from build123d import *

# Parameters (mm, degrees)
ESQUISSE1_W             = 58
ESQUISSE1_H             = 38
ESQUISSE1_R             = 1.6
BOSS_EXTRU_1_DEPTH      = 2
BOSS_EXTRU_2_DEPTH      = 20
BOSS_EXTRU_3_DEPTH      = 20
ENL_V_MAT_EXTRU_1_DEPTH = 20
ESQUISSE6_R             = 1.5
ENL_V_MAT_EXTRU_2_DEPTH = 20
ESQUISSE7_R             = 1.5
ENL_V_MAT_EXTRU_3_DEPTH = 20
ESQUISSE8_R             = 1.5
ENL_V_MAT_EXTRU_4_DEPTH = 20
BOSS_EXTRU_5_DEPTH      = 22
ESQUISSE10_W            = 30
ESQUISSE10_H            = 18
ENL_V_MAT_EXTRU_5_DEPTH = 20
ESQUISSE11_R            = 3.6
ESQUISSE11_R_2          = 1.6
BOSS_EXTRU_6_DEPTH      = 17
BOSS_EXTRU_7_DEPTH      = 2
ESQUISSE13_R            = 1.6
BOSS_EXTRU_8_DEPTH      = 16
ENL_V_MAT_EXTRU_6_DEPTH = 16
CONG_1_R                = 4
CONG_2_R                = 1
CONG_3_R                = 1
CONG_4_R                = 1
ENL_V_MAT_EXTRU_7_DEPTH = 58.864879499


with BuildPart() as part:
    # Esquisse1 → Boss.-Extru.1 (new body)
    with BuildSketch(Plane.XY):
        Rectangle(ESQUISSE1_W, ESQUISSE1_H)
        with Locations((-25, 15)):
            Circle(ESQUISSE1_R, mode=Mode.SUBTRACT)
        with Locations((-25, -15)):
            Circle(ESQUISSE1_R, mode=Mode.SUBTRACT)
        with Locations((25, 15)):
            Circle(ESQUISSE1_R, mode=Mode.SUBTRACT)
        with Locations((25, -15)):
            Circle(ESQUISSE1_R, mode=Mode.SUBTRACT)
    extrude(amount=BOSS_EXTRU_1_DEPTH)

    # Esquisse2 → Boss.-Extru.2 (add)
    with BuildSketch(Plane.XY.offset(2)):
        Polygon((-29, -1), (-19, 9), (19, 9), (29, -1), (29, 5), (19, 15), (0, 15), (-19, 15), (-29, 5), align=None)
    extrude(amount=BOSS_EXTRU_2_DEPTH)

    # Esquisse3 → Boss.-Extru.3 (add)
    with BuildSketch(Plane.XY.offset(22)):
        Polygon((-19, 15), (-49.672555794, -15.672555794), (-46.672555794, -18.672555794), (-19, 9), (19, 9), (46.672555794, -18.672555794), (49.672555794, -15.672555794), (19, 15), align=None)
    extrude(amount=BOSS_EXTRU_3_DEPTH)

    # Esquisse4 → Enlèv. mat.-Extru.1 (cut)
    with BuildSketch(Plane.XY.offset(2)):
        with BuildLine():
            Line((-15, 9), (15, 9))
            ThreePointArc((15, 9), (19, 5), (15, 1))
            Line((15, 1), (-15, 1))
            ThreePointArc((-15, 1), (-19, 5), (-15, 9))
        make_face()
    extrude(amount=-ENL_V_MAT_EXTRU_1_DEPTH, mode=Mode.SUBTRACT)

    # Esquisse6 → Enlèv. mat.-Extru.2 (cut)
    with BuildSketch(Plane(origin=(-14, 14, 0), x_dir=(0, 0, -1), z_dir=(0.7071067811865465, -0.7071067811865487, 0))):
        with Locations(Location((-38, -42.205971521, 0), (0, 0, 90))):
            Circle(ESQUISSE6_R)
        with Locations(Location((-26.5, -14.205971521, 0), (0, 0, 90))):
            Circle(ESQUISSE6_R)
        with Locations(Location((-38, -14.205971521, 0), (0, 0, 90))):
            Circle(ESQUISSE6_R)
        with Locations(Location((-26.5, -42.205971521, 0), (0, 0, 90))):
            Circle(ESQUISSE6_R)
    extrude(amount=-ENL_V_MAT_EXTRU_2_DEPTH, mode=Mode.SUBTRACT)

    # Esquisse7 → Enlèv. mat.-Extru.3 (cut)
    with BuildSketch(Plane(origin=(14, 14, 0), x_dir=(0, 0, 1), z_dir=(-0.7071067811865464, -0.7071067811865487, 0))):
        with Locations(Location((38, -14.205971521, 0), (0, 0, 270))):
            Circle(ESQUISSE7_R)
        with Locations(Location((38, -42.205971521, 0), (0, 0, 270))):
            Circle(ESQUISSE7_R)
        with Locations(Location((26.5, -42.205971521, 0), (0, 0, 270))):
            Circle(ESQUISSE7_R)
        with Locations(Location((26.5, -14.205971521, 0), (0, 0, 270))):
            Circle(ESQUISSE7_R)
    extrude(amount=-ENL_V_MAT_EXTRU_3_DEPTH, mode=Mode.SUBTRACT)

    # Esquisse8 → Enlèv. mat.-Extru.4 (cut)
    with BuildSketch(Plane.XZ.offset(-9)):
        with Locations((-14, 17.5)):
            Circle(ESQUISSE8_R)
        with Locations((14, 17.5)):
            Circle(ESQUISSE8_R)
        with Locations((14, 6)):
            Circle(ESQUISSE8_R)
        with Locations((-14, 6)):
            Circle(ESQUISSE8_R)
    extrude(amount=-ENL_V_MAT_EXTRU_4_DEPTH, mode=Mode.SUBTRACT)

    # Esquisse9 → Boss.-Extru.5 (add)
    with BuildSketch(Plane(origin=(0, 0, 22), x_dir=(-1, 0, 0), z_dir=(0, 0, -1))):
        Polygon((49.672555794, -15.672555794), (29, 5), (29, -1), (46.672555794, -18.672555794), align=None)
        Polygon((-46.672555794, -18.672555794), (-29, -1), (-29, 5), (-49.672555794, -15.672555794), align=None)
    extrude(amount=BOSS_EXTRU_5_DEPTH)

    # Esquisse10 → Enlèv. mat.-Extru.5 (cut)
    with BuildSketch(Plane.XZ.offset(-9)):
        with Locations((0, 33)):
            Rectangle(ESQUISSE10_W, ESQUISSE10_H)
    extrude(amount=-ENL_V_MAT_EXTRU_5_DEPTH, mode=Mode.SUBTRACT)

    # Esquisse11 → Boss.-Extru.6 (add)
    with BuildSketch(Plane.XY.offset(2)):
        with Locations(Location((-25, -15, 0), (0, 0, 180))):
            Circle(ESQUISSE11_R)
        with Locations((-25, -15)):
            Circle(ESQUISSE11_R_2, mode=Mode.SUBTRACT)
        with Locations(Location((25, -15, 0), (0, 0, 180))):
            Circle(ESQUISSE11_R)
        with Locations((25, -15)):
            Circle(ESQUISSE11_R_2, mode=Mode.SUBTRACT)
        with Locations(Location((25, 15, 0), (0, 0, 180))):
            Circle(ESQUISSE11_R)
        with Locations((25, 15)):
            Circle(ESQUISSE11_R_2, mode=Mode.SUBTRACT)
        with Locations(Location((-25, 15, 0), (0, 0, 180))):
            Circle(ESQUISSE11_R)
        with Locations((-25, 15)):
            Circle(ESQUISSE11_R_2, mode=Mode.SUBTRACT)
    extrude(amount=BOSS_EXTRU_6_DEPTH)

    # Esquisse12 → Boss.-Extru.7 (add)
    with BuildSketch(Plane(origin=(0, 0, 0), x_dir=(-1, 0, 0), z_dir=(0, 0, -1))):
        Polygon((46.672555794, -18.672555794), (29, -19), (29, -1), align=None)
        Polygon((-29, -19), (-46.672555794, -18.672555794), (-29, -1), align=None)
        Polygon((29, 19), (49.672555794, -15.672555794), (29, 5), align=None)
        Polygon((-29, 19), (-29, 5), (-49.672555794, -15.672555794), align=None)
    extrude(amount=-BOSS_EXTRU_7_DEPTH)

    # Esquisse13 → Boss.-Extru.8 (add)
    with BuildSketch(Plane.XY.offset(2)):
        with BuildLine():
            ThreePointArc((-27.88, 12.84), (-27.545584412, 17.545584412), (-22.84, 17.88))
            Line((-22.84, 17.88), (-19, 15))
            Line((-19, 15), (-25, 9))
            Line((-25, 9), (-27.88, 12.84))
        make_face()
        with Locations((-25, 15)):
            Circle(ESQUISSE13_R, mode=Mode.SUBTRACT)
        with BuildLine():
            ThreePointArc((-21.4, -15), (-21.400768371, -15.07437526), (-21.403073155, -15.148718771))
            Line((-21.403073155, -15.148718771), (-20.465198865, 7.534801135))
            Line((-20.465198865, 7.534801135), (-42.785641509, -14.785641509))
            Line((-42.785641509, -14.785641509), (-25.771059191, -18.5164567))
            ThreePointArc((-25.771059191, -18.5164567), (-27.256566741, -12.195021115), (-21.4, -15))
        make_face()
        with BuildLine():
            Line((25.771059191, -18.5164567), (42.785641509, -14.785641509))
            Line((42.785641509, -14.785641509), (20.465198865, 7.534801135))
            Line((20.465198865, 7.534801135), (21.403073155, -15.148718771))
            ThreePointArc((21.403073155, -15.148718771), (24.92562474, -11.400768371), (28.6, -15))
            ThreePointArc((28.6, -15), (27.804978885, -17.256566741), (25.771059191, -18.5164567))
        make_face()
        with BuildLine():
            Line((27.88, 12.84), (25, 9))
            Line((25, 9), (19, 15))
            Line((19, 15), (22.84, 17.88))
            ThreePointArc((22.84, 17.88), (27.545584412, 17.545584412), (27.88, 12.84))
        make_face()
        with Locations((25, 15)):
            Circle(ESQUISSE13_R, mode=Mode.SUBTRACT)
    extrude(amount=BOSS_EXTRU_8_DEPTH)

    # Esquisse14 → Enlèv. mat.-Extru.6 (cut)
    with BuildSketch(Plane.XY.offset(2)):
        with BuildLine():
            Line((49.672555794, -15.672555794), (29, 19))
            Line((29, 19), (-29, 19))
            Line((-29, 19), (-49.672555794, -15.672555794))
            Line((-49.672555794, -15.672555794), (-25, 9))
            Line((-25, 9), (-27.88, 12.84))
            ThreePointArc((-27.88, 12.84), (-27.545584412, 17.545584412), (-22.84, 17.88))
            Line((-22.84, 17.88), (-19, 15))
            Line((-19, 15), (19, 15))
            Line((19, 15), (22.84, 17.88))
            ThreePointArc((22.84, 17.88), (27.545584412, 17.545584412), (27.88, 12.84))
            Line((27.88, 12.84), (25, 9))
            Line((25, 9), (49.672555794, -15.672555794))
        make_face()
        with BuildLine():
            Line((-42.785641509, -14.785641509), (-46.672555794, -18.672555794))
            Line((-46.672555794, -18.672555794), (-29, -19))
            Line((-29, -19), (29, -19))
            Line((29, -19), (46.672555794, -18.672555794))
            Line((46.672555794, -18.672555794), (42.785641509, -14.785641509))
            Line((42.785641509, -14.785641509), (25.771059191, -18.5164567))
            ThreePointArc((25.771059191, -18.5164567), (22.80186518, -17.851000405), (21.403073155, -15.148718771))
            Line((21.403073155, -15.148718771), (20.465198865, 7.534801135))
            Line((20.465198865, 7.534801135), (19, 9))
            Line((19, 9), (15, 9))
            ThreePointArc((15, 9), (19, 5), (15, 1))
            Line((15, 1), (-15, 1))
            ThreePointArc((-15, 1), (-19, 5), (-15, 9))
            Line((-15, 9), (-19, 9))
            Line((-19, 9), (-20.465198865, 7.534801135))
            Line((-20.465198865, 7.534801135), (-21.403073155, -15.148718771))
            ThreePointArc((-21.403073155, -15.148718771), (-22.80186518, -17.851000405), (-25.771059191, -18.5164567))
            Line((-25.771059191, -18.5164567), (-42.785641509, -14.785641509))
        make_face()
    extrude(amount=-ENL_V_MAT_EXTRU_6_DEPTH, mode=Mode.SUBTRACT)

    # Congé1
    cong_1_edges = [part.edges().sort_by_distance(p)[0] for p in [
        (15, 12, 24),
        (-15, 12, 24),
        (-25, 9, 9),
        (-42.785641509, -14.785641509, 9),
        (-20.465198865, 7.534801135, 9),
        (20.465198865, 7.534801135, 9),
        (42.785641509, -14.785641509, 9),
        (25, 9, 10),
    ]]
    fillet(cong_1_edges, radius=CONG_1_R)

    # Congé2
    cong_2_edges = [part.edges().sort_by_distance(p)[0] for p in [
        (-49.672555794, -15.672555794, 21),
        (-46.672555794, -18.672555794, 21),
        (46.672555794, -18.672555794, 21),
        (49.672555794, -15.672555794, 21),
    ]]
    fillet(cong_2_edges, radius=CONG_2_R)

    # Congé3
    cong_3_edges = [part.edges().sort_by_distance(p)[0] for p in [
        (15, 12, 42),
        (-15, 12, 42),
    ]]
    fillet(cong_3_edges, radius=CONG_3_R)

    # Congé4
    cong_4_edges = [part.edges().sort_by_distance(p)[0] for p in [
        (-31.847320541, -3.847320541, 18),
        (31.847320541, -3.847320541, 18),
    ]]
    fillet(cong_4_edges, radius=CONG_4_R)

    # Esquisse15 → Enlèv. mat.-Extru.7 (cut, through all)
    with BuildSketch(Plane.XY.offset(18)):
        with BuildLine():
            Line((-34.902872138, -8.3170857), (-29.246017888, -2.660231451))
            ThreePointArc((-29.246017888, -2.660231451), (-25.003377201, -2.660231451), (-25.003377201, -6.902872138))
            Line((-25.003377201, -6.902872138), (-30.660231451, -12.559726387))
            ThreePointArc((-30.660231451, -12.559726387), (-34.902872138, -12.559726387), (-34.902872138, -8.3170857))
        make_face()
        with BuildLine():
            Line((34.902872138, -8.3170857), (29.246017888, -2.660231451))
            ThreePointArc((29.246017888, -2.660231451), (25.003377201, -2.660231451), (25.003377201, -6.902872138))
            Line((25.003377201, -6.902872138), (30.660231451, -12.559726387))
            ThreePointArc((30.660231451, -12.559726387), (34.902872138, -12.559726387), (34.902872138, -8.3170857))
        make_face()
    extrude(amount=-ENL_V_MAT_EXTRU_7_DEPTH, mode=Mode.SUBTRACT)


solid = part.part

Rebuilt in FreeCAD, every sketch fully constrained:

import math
import FreeCAD as App
import Part
import Sketcher


def edges_at(feature, points):
    """Names of the edges that pass closest to the given points."""
    edges = feature.Shape.Edges
    near = lambda p: min(range(len(edges)), key=lambda i: edges[i].distToShape(Part.Vertex(*p))[0])
    return sorted({f"Edge{near(p) + 1}" for p in points})


def add_polygon(sketch, points):
    """Adds a closed chain of lines whose ends are joined by coincident constraints."""
    first, n = sketch.GeometryCount, len(points)
    for a, b in zip(points, points[1:] + points[:1]):
        sketch.addGeometry(Part.LineSegment(App.Vector(*a, 0), App.Vector(*b, 0)), False)
    for i in range(n):
        sketch.addConstraint(Sketcher.Constraint("Coincident", first + i, 2, first + (i + 1) % n, 1))

doc = App.newDocument("Part")
body = doc.addObject("PartDesign::Body", "Body")

sketch1 = body.newObject("Sketcher::SketchObject", "Sketch")
sketch1.AttachmentSupport = (doc.getObject("XY_Plane"), [""])
sketch1.MapMode = "FlatFace"
add_polygon(sketch1, [(-29, 19), (-29, -19), (29, -19), (29, 19)])
sketch1.addGeometry(Part.Circle(App.Vector(-25, -15, 0), App.Vector(0, 0, 1), 1.6), False)
sketch1.addGeometry(Part.Circle(App.Vector(25, -15, 0), App.Vector(0, 0, 1), 1.6), False)
sketch1.addGeometry(Part.Circle(App.Vector(-25, 15, 0), App.Vector(0, 0, 1), 1.6), False)
sketch1.addGeometry(Part.Circle(App.Vector(25, 15, 0), App.Vector(0, 0, 1), 1.6), False)
sketch1.addConstraint([
    Sketcher.Constraint("Vertical", 0),
    Sketcher.Constraint("Horizontal", 1),
    Sketcher.Constraint("Vertical", 2),
    Sketcher.Constraint("Horizontal", 3),
    Sketcher.Constraint("Equal", 4, 5),
    Sketcher.Constraint("Equal", 5, 6),
    Sketcher.Constraint("Equal", 6, 7),
    Sketcher.Constraint("Symmetric", 5, 3, 6, 3, -1, 1),
    Sketcher.Constraint("Symmetric", 4, 3, 7, 3, -1, 1),
    Sketcher.Constraint("Symmetric", 0, 2, 2, 2, -1, 1),
    Sketcher.Constraint("Symmetric", 4, 3, 5, 3, -2),
    Sketcher.Constraint("Diameter", 4, 3.2),
    Sketcher.Constraint("DistanceX", 1, 1, 1, 2, 58.0),
    Sketcher.Constraint("DistanceY", 0, 2, 0, 1, 38.0),
    Sketcher.Constraint("DistanceX", 4, 3, -1, 1, 25.0),
    Sketcher.Constraint("DistanceY", 4, 3, -1, 1, 15.0),
])
pad1 = body.newObject("PartDesign::Pad", "Pad")
pad1.Profile = sketch1
pad1.Length = 2

sketch2 = body.newObject("Sketcher::SketchObject", "Sketch001")
sketch2.AttachmentSupport = (doc.getObject("XY_Plane"), [""])
sketch2.MapMode = "FlatFace"
sketch2.AttachmentOffset = App.Placement(App.Vector(0, 0, 2), App.Rotation())
add_polygon(sketch2, [(-29, -1), (-19, 9), (19, 9), (29, -1), (29, 5), (19, 15), (-19, 15), (-29, 5)])
sketch2.addConstraint([
    Sketcher.Constraint("Horizontal", 1),
    Sketcher.Constraint("Vertical", 3),
    Sketcher.Constraint("Horizontal", 5),
    Sketcher.Constraint("Vertical", 7),
    Sketcher.Constraint("Symmetric", 3, 2, 6, 2, -2),
    Sketcher.Constraint("Perpendicular", 0, 2),
    Sketcher.Constraint("Parallel", 2, 4),
    Sketcher.Constraint("Perpendicular", 4, 6),
    Sketcher.Constraint("Horizontal", 2, 2, 7, 2),
    Sketcher.Constraint("Vertical", 1, 2, 4, 2),
    Sketcher.Constraint("Equal", 0, 2),
    Sketcher.Constraint("DistanceX", 1, 1, 1, 2, 38.0),
    Sketcher.Constraint("DistanceY", 3, 1, 3, 2, 6.0),
    Sketcher.Constraint("DistanceY", -1, 1, 0, 2, 9.0),
    Sketcher.Constraint("DistanceX", -1, 1, 2, 2, 29.0),
])
pad2 = body.newObject("PartDesign::Pad", "Pad001")
pad2.Profile = sketch2
pad2.Length = 20

sketch3 = body.newObject("Sketcher::SketchObject", "Sketch002")
sketch3.AttachmentSupport = (doc.getObject("XY_Plane"), [""])
sketch3.MapMode = "FlatFace"
sketch3.AttachmentOffset = App.Placement(App.Vector(0, 0, 22), App.Rotation())
add_polygon(sketch3, [(-19, 15), (-49.672556, -15.672556), (-46.672556, -18.672556), (-19, 9), (19, 9), (46.672556, -18.672556), (49.672556, -15.672556), (19, 15)])
sketch3.addConstraint([
    Sketcher.Constraint("Horizontal", 3),
    Sketcher.Constraint("Horizontal", 7),
    Sketcher.Constraint("Symmetric", 1, 2, 4, 2, -2),
    Sketcher.Constraint("Symmetric", 0, 2, 5, 2, -2),
    Sketcher.Constraint("Perpendicular", 0, 1),
    Sketcher.Constraint("Perpendicular", 1, 2),
    Sketcher.Constraint("Perpendicular", 2, 4),
    Sketcher.Constraint("Perpendicular", 4, 5),
    Sketcher.Constraint("Perpendicular", 5, 6),
    Sketcher.Constraint("Vertical", 3, 2, 6, 2),
    Sketcher.Constraint("DistanceX", 3, 1, 3, 2, 38.0),
    Sketcher.Constraint("DistanceY", -1, 1, 2, 2, 9.0),
    Sketcher.Constraint("DistanceY", -1, 1, 6, 2, 15.0),
    Sketcher.Constraint("DistanceX", 1, 2, 4, 2, 93.345112),
])
pad3 = body.newObject("PartDesign::Pad", "Pad002")
pad3.Profile = sketch3
pad3.Length = 20

sketch4 = body.newObject("Sketcher::SketchObject", "Sketch003")
sketch4.AttachmentSupport = (doc.getObject("XY_Plane"), [""])
sketch4.MapMode = "FlatFace"
sketch4.AttachmentOffset = App.Placement(App.Vector(0, 0, 2), App.Rotation())
sketch4.addGeometry([
    Part.LineSegment(App.Vector(15, 9, 0), App.Vector(-15, 9, 0)),
    Part.ArcOfCircle(Part.Circle(App.Vector(-15, 5, 0), App.Vector(0, 0, 1), 4), math.radians(90), math.radians(270)),
    Part.LineSegment(App.Vector(-15, 1, 0), App.Vector(15, 1, 0)),
    Part.ArcOfCircle(Part.Circle(App.Vector(15, 5, 0), App.Vector(0, 0, 1), 4), math.radians(-90), math.radians(90)),
], False)
sketch4.addConstraint([
    Sketcher.Constraint("Tangent", 0, 2, 1, 1),
    Sketcher.Constraint("Tangent", 1, 2, 2, 1),
    Sketcher.Constraint("Tangent", 2, 2, 3, 1),
    Sketcher.Constraint("Tangent", 3, 2, 0, 1),
    Sketcher.Constraint("Horizontal", 0),
    Sketcher.Constraint("Horizontal", 2),
    Sketcher.Constraint("Radius", 1, 4.0),
    Sketcher.Constraint("DistanceX", 0, 2, 0, 1, 30.0),
    Sketcher.Constraint("DistanceX", 1, 3, -1, 1, 15.0),
    Sketcher.Constraint("DistanceY", -1, 1, 1, 3, 5.0),
])
pocket1 = body.newObject("PartDesign::Pocket", "Pocket")
pocket1.Profile = sketch4
pocket1.Length = 20

sketch5 = body.newObject("Sketcher::SketchObject", "Sketch004")
sketch5.Placement = App.Placement(App.Vector(-14, 14, 0), App.Rotation(App.Vector(0, 0, -1), App.Vector(0.707106781, 0.707106781, 0), App.Vector(0.707106781, -0.707106781, 0), "ZXY"))
sketch5.addGeometry([
    Part.Circle(App.Vector(-38, -42.205971, 0), App.Vector(0, 0, 1), 1.5),
    Part.Circle(App.Vector(-26.5, -14.205972, 0), App.Vector(0, 0, 1), 1.5),
    Part.Circle(App.Vector(-38, -14.205972, 0), App.Vector(0, 0, 1), 1.5),
    Part.Circle(App.Vector(-26.5, -42.205971, 0), App.Vector(0, 0, 1), 1.5),
], False)
sketch5.addConstraint([
    Sketcher.Constraint("Equal", 0, 1),
    Sketcher.Constraint("Equal", 1, 2),
    Sketcher.Constraint("Equal", 2, 3),
    Sketcher.Constraint("Horizontal", 1, 3, 2, 3),
    Sketcher.Constraint("Horizontal", 0, 3, 3, 3),
    Sketcher.Constraint("Vertical", 0, 3, 2, 3),
    Sketcher.Constraint("Vertical", 1, 3, 3, 3),
    Sketcher.Constraint("Diameter", 0, 3.0),
    Sketcher.Constraint("DistanceX", 0, 3, -1, 1, 38.0),
    Sketcher.Constraint("DistanceY", 0, 3, 1, 3, 28.0),
    Sketcher.Constraint("DistanceX", 1, 3, -1, 1, 26.5),
    Sketcher.Constraint("DistanceY", 0, 3, -1, 1, 42.205971),
])
pocket2 = body.newObject("PartDesign::Pocket", "Pocket001")
pocket2.Profile = sketch5
pocket2.Length = 20

sketch6 = body.newObject("Sketcher::SketchObject", "Sketch005")
sketch6.Placement = App.Placement(App.Vector(14, 14, 0), App.Rotation(App.Vector(0, 0, 1), App.Vector(-0.707106781, 0.707106781, 0), App.Vector(-0.707106781, -0.707106781, 0), "ZXY"))
sketch6.addGeometry([
    Part.Circle(App.Vector(38, -14.205972, 0), App.Vector(0, 0, 1), 1.5),
    Part.Circle(App.Vector(38, -42.205971, 0), App.Vector(0, 0, 1), 1.5),
    Part.Circle(App.Vector(26.5, -42.205971, 0), App.Vector(0, 0, 1), 1.5),
    Part.Circle(App.Vector(26.5, -14.205972, 0), App.Vector(0, 0, 1), 1.5),
], False)
sketch6.addConstraint([
    Sketcher.Constraint("Equal", 0, 1),
    Sketcher.Constraint("Equal", 1, 2),
    Sketcher.Constraint("Equal", 2, 3),
    Sketcher.Constraint("Horizontal", 1, 3, 2, 3),
    Sketcher.Constraint("Horizontal", 0, 3, 3, 3),
    Sketcher.Constraint("Vertical", 0, 3, 1, 3),
    Sketcher.Constraint("Vertical", 2, 3, 3, 3),
    Sketcher.Constraint("Diameter", 0, 3.0),
    Sketcher.Constraint("DistanceX", -1, 1, 0, 3, 38.0),
    Sketcher.Constraint("DistanceY", 1, 3, 0, 3, 28.0),
    Sketcher.Constraint("DistanceX", -1, 1, 2, 3, 26.5),
    Sketcher.Constraint("DistanceY", 0, 3, -1, 1, 14.205972),
])
pocket3 = body.newObject("PartDesign::Pocket", "Pocket002")
pocket3.Profile = sketch6
pocket3.Length = 20

sketch7 = body.newObject("Sketcher::SketchObject", "Sketch006")
sketch7.AttachmentSupport = (doc.getObject("XZ_Plane"), [""])
sketch7.MapMode = "FlatFace"
sketch7.AttachmentOffset = App.Placement(App.Vector(0, 0, -9), App.Rotation())
sketch7.addGeometry([
    Part.Circle(App.Vector(-14, 17.5, 0), App.Vector(0, 0, 1), 1.5),
    Part.Circle(App.Vector(14, 17.5, 0), App.Vector(0, 0, 1), 1.5),
    Part.Circle(App.Vector(14, 6, 0), App.Vector(0, 0, 1), 1.5),
    Part.Circle(App.Vector(-14, 6, 0), App.Vector(0, 0, 1), 1.5),
], False)
sketch7.addConstraint([
    Sketcher.Constraint("Equal", 0, 1),
    Sketcher.Constraint("Equal", 1, 2),
    Sketcher.Constraint("Equal", 2, 3),
    Sketcher.Constraint("Symmetric", 0, 3, 1, 3, -2),
    Sketcher.Constraint("Symmetric", 2, 3, 3, 3, -2),
    Sketcher.Constraint("Vertical", 1, 3, 2, 3),
    Sketcher.Constraint("Diameter", 0, 3.0),
    Sketcher.Constraint("DistanceX", 0, 3, -1, 1, 14.0),
    Sketcher.Constraint("DistanceY", -1, 1, 2, 3, 6.0),
    Sketcher.Constraint("DistanceY", -1, 1, 0, 3, 17.5),
])
pocket4 = body.newObject("PartDesign::Pocket", "Pocket003")
pocket4.Profile = sketch7
pocket4.Length = 20

sketch8 = body.newObject("Sketcher::SketchObject", "Sketch007")
sketch8.AttachmentSupport = (doc.getObject("XY_Plane"), [""])
sketch8.MapMode = "FlatFace"
sketch8.AttachmentOffset = App.Placement(App.Vector(0, 0, 22), App.Rotation())
add_polygon(sketch8, [(-49.672556, -15.672556), (-29, 5), (-29, -1), (-46.672556, -18.672556)])
add_polygon(sketch8, [(46.672556, -18.672556), (29, -1), (29, 5), (49.672556, -15.672556)])
sketch8.addConstraint([
    Sketcher.Constraint("Vertical", 1),
    Sketcher.Constraint("Vertical", 5),
    Sketcher.Constraint("Symmetric", 1, 2, 4, 2, -2),
    Sketcher.Constraint("Symmetric", 3, 2, 6, 2, -2),
    Sketcher.Constraint("Symmetric", 2, 2, 7, 2, -2),
    Sketcher.Constraint("Parallel", 0, 2),
    Sketcher.Constraint("Perpendicular", 2, 3),
    Sketcher.Constraint("Parallel", 3, 4),
    Sketcher.Constraint("Parallel", 4, 6),
    Sketcher.Constraint("DistanceY", 1, 2, 1, 1, 6.0),
    Sketcher.Constraint("DistanceX", 0, 2, -1, 1, 29.0),
    Sketcher.Constraint("DistanceY", -1, 1, 0, 2, 5.0),
    Sketcher.Constraint("Distance", 0, 29.235409),
])
pad4 = body.newObject("PartDesign::Pad", "Pad003")
pad4.Profile = sketch8
pad4.Length = 22
pad4.Reversed = True

sketch9 = body.newObject("Sketcher::SketchObject", "Sketch008")
sketch9.AttachmentSupport = (doc.getObject("XZ_Plane"), [""])
sketch9.MapMode = "FlatFace"
sketch9.AttachmentOffset = App.Placement(App.Vector(0, 0, -9), App.Rotation())
add_polygon(sketch9, [(-15, 42), (-15, 24), (15, 24), (15, 42)])
sketch9.addConstraint([
    Sketcher.Constraint("Vertical", 0),
    Sketcher.Constraint("Horizontal", 1),
    Sketcher.Constraint("Vertical", 2),
    Sketcher.Constraint("Horizontal", 3),
    Sketcher.Constraint("DistanceX", 1, 1, 1, 2, 30.0),
    Sketcher.Constraint("DistanceY", 0, 2, 0, 1, 18.0),
    Sketcher.Constraint("DistanceX", 0, 2, -1, 1, 15.0),
    Sketcher.Constraint("DistanceY", -1, 1, 0, 2, 24.0),
])
pocket5 = body.newObject("PartDesign::Pocket", "Pocket004")
pocket5.Profile = sketch9
pocket5.Length = 20

sketch10 = body.newObject("Sketcher::SketchObject", "Sketch009")
sketch10.AttachmentSupport = (doc.getObject("XY_Plane"), [""])
sketch10.MapMode = "FlatFace"
sketch10.AttachmentOffset = App.Placement(App.Vector(0, 0, 2), App.Rotation())
sketch10.addGeometry([
    Part.Circle(App.Vector(-25, -15, 0), App.Vector(0, 0, 1), 3.6),
    Part.Circle(App.Vector(-25, -15, 0), App.Vector(0, 0, 1), 1.6),
    Part.Circle(App.Vector(25, -15, 0), App.Vector(0, 0, 1), 3.6),
    Part.Circle(App.Vector(25, -15, 0), App.Vector(0, 0, 1), 1.6),
    Part.Circle(App.Vector(25, 15, 0), App.Vector(0, 0, 1), 3.6),
    Part.Circle(App.Vector(25, 15, 0), App.Vector(0, 0, 1), 1.6),
    Part.Circle(App.Vector(-25, 15, 0), App.Vector(0, 0, 1), 3.6),
    Part.Circle(App.Vector(-25, 15, 0), App.Vector(0, 0, 1), 1.6),
], False)
sketch10.addConstraint([
    Sketcher.Constraint("Coincident", 1, 3, 0, 3),
    Sketcher.Constraint("Coincident", 3, 3, 2, 3),
    Sketcher.Constraint("Coincident", 5, 3, 4, 3),
    Sketcher.Constraint("Coincident", 7, 3, 6, 3),
    Sketcher.Constraint("Equal", 0, 2),
    Sketcher.Constraint("Equal", 1, 3),
    Sketcher.Constraint("Equal", 2, 4),
    Sketcher.Constraint("Equal", 3, 5),
    Sketcher.Constraint("Equal", 4, 6),
    Sketcher.Constraint("Equal", 5, 7),
    Sketcher.Constraint("Symmetric", 0, 3, 4, 3, -1, 1),
    Sketcher.Constraint("Symmetric", 2, 3, 6, 3, -1, 1),
    Sketcher.Constraint("Symmetric", 0, 3, 2, 3, -2),
    Sketcher.Constraint("Diameter", 0, 7.2),
    Sketcher.Constraint("Diameter", 1, 3.2),
    Sketcher.Constraint("DistanceX", 0, 3, -1, 1, 25.0),
    Sketcher.Constraint("DistanceY", 0, 3, -1, 1, 15.0),
])
pad5 = body.newObject("PartDesign::Pad", "Pad004")
pad5.Profile = sketch10
pad5.Length = 17

sketch11 = body.newObject("Sketcher::SketchObject", "Sketch010")
sketch11.AttachmentSupport = (doc.getObject("XY_Plane"), [""])
sketch11.MapMode = "FlatFace"
add_polygon(sketch11, [(-29, -19), (-46.672556, -18.672556), (-29, -1)])
add_polygon(sketch11, [(46.672556, -18.672556), (29, -19), (29, -1)])
add_polygon(sketch11, [(-49.672556, -15.672556), (-29, 19), (-29, 5)])
add_polygon(sketch11, [(29, 5), (29, 19), (49.672556, -15.672556)])
sketch11.addConstraint([
    Sketcher.Constraint("Vertical", 2),
    Sketcher.Constraint("Vertical", 4),
    Sketcher.Constraint("Vertical", 7),
    Sketcher.Constraint("Vertical", 9),
    Sketcher.Constraint("Symmetric", 3, 2, 6, 2, -1, 1),
    Sketcher.Constraint("Symmetric", 2, 2, 9, 2, -1, 1),
    Sketcher.Constraint("Symmetric", 2, 2, 3, 2, -2),
    Sketcher.Constraint("Symmetric", 0, 2, 5, 2, -2),
    Sketcher.Constraint("Symmetric", 8, 2, 10, 2, -2),
    Sketcher.Constraint("Perpendicular", 1, 5),
    Sketcher.Constraint("Perpendicular", 5, 8),
    Sketcher.Constraint("Perpendicular", 8, 11),
    Sketcher.Constraint("Horizontal", 1, 2, 4, 2),
    Sketcher.Constraint("DistanceY", 2, 2, 2, 1, 18.0),
    Sketcher.Constraint("DistanceY", 7, 2, 7, 1, 14.0),
    Sketcher.Constraint("DistanceX", 1, 2, -1, 1, 29.0),
    Sketcher.Constraint("DistanceY", 1, 2, -1, 1, 1.0),
    Sketcher.Constraint("DistanceX", 8, 2, 0, 2, 3.0),
    Sketcher.Constraint("Distance", 0, 17.675589),
])
pad6 = body.newObject("PartDesign::Pad", "Pad005")
pad6.Profile = sketch11
pad6.Length = 2

sketch12 = body.newObject("Sketcher::SketchObject", "Sketch011")
sketch12.AttachmentSupport = (doc.getObject("XY_Plane"), [""])
sketch12.MapMode = "FlatFace"
sketch12.AttachmentOffset = App.Placement(App.Vector(0, 0, 2), App.Rotation())
sketch12.addGeometry([
    Part.ArcOfCircle(Part.Circle(App.Vector(-25, 15, 0), App.Vector(0, 0, 1), 3.6), math.radians(53.130102), math.radians(216.869898)),
    Part.LineSegment(App.Vector(-27.88, 12.84, 0), App.Vector(-25, 9, 0)),
    Part.LineSegment(App.Vector(-25, 9, 0), App.Vector(-19, 15, 0)),
    Part.LineSegment(App.Vector(-19, 15, 0), App.Vector(-22.84, 17.88, 0)),
    Part.Circle(App.Vector(-25, 15, 0), App.Vector(0, 0, 1), 1.6),
    Part.ArcOfCircle(Part.Circle(App.Vector(-25.000001, -15, 0), App.Vector(0, 0, 1), 3.600001), math.radians(-2.367606), math.radians(0)),
    Part.LineSegment(App.Vector(-21.403073, -15.148719, 0), App.Vector(-20.465199, 7.534801, 0)),
    Part.LineSegment(App.Vector(-20.465199, 7.534801, 0), App.Vector(-42.785642, -14.785642, 0)),
    Part.LineSegment(App.Vector(-42.785642, -14.785642, 0), App.Vector(-25.771059, -18.516457, 0)),
    Part.ArcOfCircle(Part.Circle(App.Vector(-25, -15, 0), App.Vector(0, 0, 1), 3.6), math.radians(0), math.radians(257.632393)),
    Part.LineSegment(App.Vector(25.771059, -18.516457, 0), App.Vector(42.785642, -14.785642, 0)),
    Part.LineSegment(App.Vector(42.785642, -14.785642, 0), App.Vector(20.465199, 7.534801, 0)),
    Part.LineSegment(App.Vector(20.465199, 7.534801, 0), App.Vector(21.403073, -15.148719, 0)),
    Part.ArcOfCircle(Part.Circle(App.Vector(25, -15, 0), App.Vector(0, 0, 1), 3.6), math.radians(0), math.radians(182.367606)),
    Part.ArcOfCircle(Part.Circle(App.Vector(25, -15, 0), App.Vector(0, 0, 1), 3.6), math.radians(-77.632394), math.radians(0)),
    Part.LineSegment(App.Vector(25, 9, 0), App.Vector(27.88, 12.84, 0)),
    Part.ArcOfCircle(Part.Circle(App.Vector(25, 15, 0), App.Vector(0, 0, 1), 3.6), math.radians(-36.869898), math.radians(126.869898)),
    Part.LineSegment(App.Vector(22.84, 17.88, 0), App.Vector(19, 15, 0)),
    Part.LineSegment(App.Vector(19, 15, 0), App.Vector(25, 9, 0)),
    Part.Circle(App.Vector(25, 15, 0), App.Vector(0, 0, 1), 1.6),
], False)
sketch12.addConstraint([
    Sketcher.Constraint("Tangent", 0, 2, 1, 1),
    Sketcher.Constraint("Coincident", 1, 2, 2, 1),
    Sketcher.Constraint("Coincident", 2, 2, 3, 1),
    Sketcher.Constraint("Tangent", 3, 2, 0, 1),
    Sketcher.Constraint("Tangent", 5, 1, 6, 1),
    Sketcher.Constraint("Coincident", 6, 2, 7, 1),
    Sketcher.Constraint("Coincident", 7, 2, 8, 1),
    Sketcher.Constraint("Tangent", 8, 2, 9, 2),
    Sketcher.Constraint("Tangent", 9, 1, 5, 2),
    Sketcher.Constraint("Coincident", 10, 2, 11, 1),
    Sketcher.Constraint("Coincident", 11, 2, 12, 1),
    Sketcher.Constraint("Tangent", 12, 2, 13, 2),
    Sketcher.Constraint("Tangent", 13, 1, 14, 2),
    Sketcher.Constraint("Tangent", 14, 1, 10, 1),
    Sketcher.Constraint("Tangent", 15, 2, 16, 1),
    Sketcher.Constraint("Tangent", 16, 2, 17, 1),
    Sketcher.Constraint("Coincident", 17, 2, 18, 1),
    Sketcher.Constraint("Coincident", 18, 2, 15, 1),
    Sketcher.Constraint("Coincident", 4, 3, 0, 3),
    Sketcher.Constraint("Coincident", 19, 3, 16, 3),
    Sketcher.Constraint("Equal", 0, 5),
    Sketcher.Constraint("Equal", 5, 9),
    Sketcher.Constraint("Equal", 9, 13),
    Sketcher.Constraint("Equal", 13, 14),
    Sketcher.Constraint("Equal", 14, 16),
    Sketcher.Constraint("Equal", 4, 19),
    Sketcher.Constraint("Symmetric", 0, 3, 13, 3, -1, 1),
    Sketcher.Constraint("Symmetric", 5, 3, 16, 3, -1, 1),
    Sketcher.Constraint("Symmetric", 5, 3, 13, 3, -2),
    Sketcher.Constraint("Symmetric", 7, 2, 10, 2, -2),
    Sketcher.Constraint("Symmetric", 6, 2, 11, 2, -2),
    Sketcher.Constraint("Symmetric", 2, 2, 17, 2, -2),
    Sketcher.Constraint("Symmetric", 1, 2, 18, 2, -2),
    Sketcher.Constraint("Parallel", 2, 7),
    Sketcher.Constraint("Perpendicular", 7, 11),
    Sketcher.Constraint("Perpendicular", 3, 15),
    Sketcher.Constraint("Horizontal", 19, 3, 2, 2),
    Sketcher.Constraint("Horizontal", 14, 3, 9, 1),
    Sketcher.Constraint("Horizontal", 9, 1, 13, 1),
    Sketcher.Constraint("Diameter", 4, 3.2),
    Sketcher.Constraint("Radius", 0, 3.6),
    Sketcher.Constraint("DistanceX", 0, 3, -1, 1, 25.0),
    Sketcher.Constraint("DistanceY", -1, 1, 0, 3, 15.0),
    Sketcher.Constraint("DistanceY", -1, 1, 1, 2, 9.0),
    Sketcher.Constraint("Distance", 6, 22.7029),
    Sketcher.Constraint("DistanceX", 6, 2, -1, 1, 20.465199),
    Sketcher.Constraint("Distance", 8, 17.418811),
])
pad7 = body.newObject("PartDesign::Pad", "Pad006")
pad7.Profile = sketch12
pad7.Length = 16

sketch13 = body.newObject("Sketcher::SketchObject", "Sketch012")
sketch13.AttachmentSupport = (doc.getObject("XY_Plane"), [""])
sketch13.MapMode = "FlatFace"
sketch13.AttachmentOffset = App.Placement(App.Vector(0, 0, 2), App.Rotation())
sketch13.addGeometry([
    Part.LineSegment(App.Vector(49.672556, -15.672556, 0), App.Vector(29, 19, 0)),
    Part.LineSegment(App.Vector(29, 19, 0), App.Vector(-29, 19, 0)),
    Part.LineSegment(App.Vector(-29, 19, 0), App.Vector(-49.672556, -15.672556, 0)),
    Part.LineSegment(App.Vector(-49.672556, -15.672556, 0), App.Vector(-25, 9, 0)),
    Part.LineSegment(App.Vector(-25, 9, 0), App.Vector(-27.88, 12.84, 0)),
    Part.ArcOfCircle(Part.Circle(App.Vector(-25, 15, 0), App.Vector(0, 0, 1), 3.6), math.radians(53.130102), math.radians(216.869898)),
    Part.LineSegment(App.Vector(-22.84, 17.88, 0), App.Vector(-19, 15, 0)),
    Part.LineSegment(App.Vector(-19, 15, 0), App.Vector(19, 15, 0)),
    Part.LineSegment(App.Vector(19, 15, 0), App.Vector(22.84, 17.88, 0)),
    Part.ArcOfCircle(Part.Circle(App.Vector(25, 15, 0), App.Vector(0, 0, 1), 3.6), math.radians(-36.869898), math.radians(126.869898)),
    Part.LineSegment(App.Vector(27.88, 12.84, 0), App.Vector(25, 9, 0)),
    Part.LineSegment(App.Vector(25, 9, 0), App.Vector(49.672556, -15.672556, 0)),
    Part.LineSegment(App.Vector(-42.785642, -14.785642, 0), App.Vector(-46.672556, -18.672556, 0)),
    Part.LineSegment(App.Vector(-46.672556, -18.672556, 0), App.Vector(-29, -19, 0)),
    Part.LineSegment(App.Vector(-29, -19, 0), App.Vector(29, -19, 0)),
    Part.LineSegment(App.Vector(29, -19, 0), App.Vector(46.672556, -18.672556, 0)),
    Part.LineSegment(App.Vector(46.672556, -18.672556, 0), App.Vector(42.785642, -14.785642, 0)),
    Part.LineSegment(App.Vector(42.785642, -14.785642, 0), App.Vector(25.771059, -18.516457, 0)),
    Part.ArcOfCircle(Part.Circle(App.Vector(25, -15, 0), App.Vector(0, 0, 1), 3.6), math.radians(-177.632393), math.radians(-77.632394)),
    Part.LineSegment(App.Vector(21.403073, -15.148719, 0), App.Vector(20.465199, 7.534801, 0)),
    Part.LineSegment(App.Vector(20.465199, 7.534801, 0), App.Vector(19, 9, 0)),
    Part.LineSegment(App.Vector(19, 9, 0), App.Vector(15, 9, 0)),
    Part.ArcOfCircle(Part.Circle(App.Vector(15, 5, 0), App.Vector(0, 0, 1), 4), math.radians(-90), math.radians(90)),
    Part.LineSegment(App.Vector(15, 1, 0), App.Vector(-15, 1, 0)),
    Part.ArcOfCircle(Part.Circle(App.Vector(-15, 5, 0), App.Vector(0, 0, 1), 4), math.radians(90), math.radians(270)),
    Part.LineSegment(App.Vector(-15, 9, 0), App.Vector(-19, 9, 0)),
    Part.LineSegment(App.Vector(-19, 9, 0), App.Vector(-20.465199, 7.534801, 0)),
    Part.LineSegment(App.Vector(-20.465199, 7.534801, 0), App.Vector(-21.403073, -15.148719, 0)),
    Part.ArcOfCircle(Part.Circle(App.Vector(-25, -15, 0), App.Vector(0, 0, 1), 3.6), math.radians(-102.367606), math.radians(-2.367607)),
    Part.LineSegment(App.Vector(-25.771059, -18.516457, 0), App.Vector(-42.785642, -14.785642, 0)),
], False)
sketch13.addConstraint([
    Sketcher.Constraint("Coincident", 0, 2, 1, 1),
    Sketcher.Constraint("Coincident", 1, 2, 2, 1),
    Sketcher.Constraint("Coincident", 2, 2, 3, 1),
    Sketcher.Constraint("Coincident", 3, 2, 4, 1),
    Sketcher.Constraint("Tangent", 4, 2, 5, 2),
    Sketcher.Constraint("Tangent", 5, 1, 6, 1),
    Sketcher.Constraint("Coincident", 6, 2, 7, 1),
    Sketcher.Constraint("Coincident", 7, 2, 8, 1),
    Sketcher.Constraint("Tangent", 8, 2, 9, 2),
    Sketcher.Constraint("Tangent", 9, 1, 10, 1),
    Sketcher.Constraint("Coincident", 10, 2, 11, 1),
    Sketcher.Constraint("Coincident", 11, 2, 0, 1),
    Sketcher.Constraint("Coincident", 12, 2, 13, 1),
    Sketcher.Constraint("Coincident", 13, 2, 14, 1),
    Sketcher.Constraint("Coincident", 14, 2, 15, 1),
    Sketcher.Constraint("Coincident", 15, 2, 16, 1),
    Sketcher.Constraint("Coincident", 16, 2, 17, 1),
    Sketcher.Constraint("Tangent", 17, 2, 18, 2),
    Sketcher.Constraint("Tangent", 18, 1, 19, 1),
    Sketcher.Constraint("Coincident", 19, 2, 20, 1),
    Sketcher.Constraint("Coincident", 20, 2, 21, 1),
    Sketcher.Constraint("Tangent", 21, 2, 22, 2),
    Sketcher.Constraint("Tangent", 22, 1, 23, 1),
    Sketcher.Constraint("Tangent", 23, 2, 24, 2),
    Sketcher.Constraint("Tangent", 24, 1, 25, 1),
    Sketcher.Constraint("Coincident", 25, 2, 26, 1),
    Sketcher.Constraint("Coincident", 26, 2, 27, 1),
    Sketcher.Constraint("Tangent", 27, 2, 28, 2),
    Sketcher.Constraint("Tangent", 28, 1, 29, 1),
    Sketcher.Constraint("Coincident", 29, 2, 12, 1),
    Sketcher.Constraint("Horizontal", 1),
    Sketcher.Constraint("Horizontal", 7),
    Sketcher.Constraint("Horizontal", 14),
    Sketcher.Constraint("Horizontal", 21),
    Sketcher.Constraint("Horizontal", 23),
    Sketcher.Constraint("Horizontal", 25),
    Sketcher.Constraint("Equal", 5, 9),
    Sketcher.Constraint("Equal", 9, 18),
    Sketcher.Constraint("Equal", 22, 24),
    Sketcher.Constraint("Equal", 18, 28),
    Sketcher.Constraint("Symmetric", 5, 3, 18, 3, -1, 1),
    Sketcher.Constraint("Symmetric", 9, 3, 28, 3, -1, 1),
    Sketcher.Constraint("Symmetric", 0, 2, 13, 2, -1, 1),
    Sketcher.Constraint("Symmetric", 5, 3, 9, 3, -2),
    Sketcher.Constraint("Symmetric", 3, 2, 10, 2, -2),
    Sketcher.Constraint("Symmetric", 2, 2, 11, 2, -2),
    Sketcher.Constraint("Symmetric", 12, 2, 15, 2, -2),
    Sketcher.Constraint("Symmetric", 19, 2, 26, 2, -2),
    Sketcher.Constraint("Symmetric", 16, 2, 29, 2, -2),
    Sketcher.Constraint("Perpendicular", 4, 8),
    Sketcher.Constraint("Perpendicular", 6, 10),
    Sketcher.Constraint("Perpendicular", 3, 11),
    Sketcher.Constraint("Perpendicular", 11, 12),
    Sketcher.Constraint("Parallel", 16, 20),
    Sketcher.Constraint("Perpendicular", 20, 26),
    Sketcher.Constraint("Horizontal", 9, 3, 6, 2),
    Sketcher.Constraint("Horizontal", 10, 2, 20, 2),
    Sketcher.Constraint("Vertical", 28, 3, 3, 2),
    Sketcher.Constraint("Vertical", 1, 2, 13, 2),
    Sketcher.Constraint("Vertical", 0, 2, 14, 2),
    Sketcher.Constraint("Vertical", 7, 2, 20, 2),
    Sketcher.Constraint("Equal", 21, 25),
    Sketcher.Constraint("Radius", 22, 4.0),
    Sketcher.Constraint("Radius", 5, 3.6),
    Sketcher.Constraint("DistanceX", 1, 2, 1, 1, 58.0),
    Sketcher.Constraint("DistanceX", 7, 1, 7, 2, 38.0),
    Sketcher.Constraint("DistanceX", 21, 2, 21, 1, 4.0),
    Sketcher.Constraint("DistanceX", 5, 3, -1, 1, 25.0),
    Sketcher.Constraint("DistanceY", -1, 1, 5, 3, 15.0),
    Sketcher.Constraint("DistanceY", -1, 1, 0, 2, 19.0),
    Sketcher.Constraint("DistanceX", 2, 2, 12, 2, 3.0),
    Sketcher.Constraint("DistanceY", 12, 2, 2, 2, 3.0),
    Sketcher.Constraint("Distance", 19, 22.7029),
    Sketcher.Constraint("DistanceY", 15, 2, 17, 2, 0.156099),
    Sketcher.Constraint("Distance", 0, 40.36757),
])
pocket6 = body.newObject("PartDesign::Pocket", "Pocket005")
pocket6.Profile = sketch13
pocket6.Length = 16
doc.recompute()

fillet = body.newObject("PartDesign::Fillet", "Fillet")
fillet.Base = (pocket6, edges_at(pocket6, [
    (15, 12, 24),
    (-15, 12, 24),
    (-25, 9, 9),
    (-42.786, -14.786, 10),
    (-20.465, 7.535, 10),
    (20.465, 7.535, 10),
    (42.786, -14.786, 10),
    (25, 9, 10),
]))
fillet.Radius = 4
doc.recompute()

fillet2 = body.newObject("PartDesign::Fillet", "Fillet001")
fillet2.Base = (fillet, edges_at(fillet, [
    (-49.673, -15.673, 21),
    (-46.673, -18.673, 21),
    (46.673, -18.673, 22),
    (49.673, -15.673, 22),
]))
fillet2.Radius = 1
doc.recompute()

fillet3 = body.newObject("PartDesign::Fillet", "Fillet002")
fillet3.Base = (fillet2, edges_at(fillet2, [(15, 12, 42), (-15, 12, 42)]))
fillet3.Radius = 1
doc.recompute()

fillet4 = body.newObject("PartDesign::Fillet", "Fillet003")
fillet4.Base = (fillet3, edges_at(fillet3, [(-31.847, -3.847, 18), (31.847, -3.847, 18)]))
fillet4.Radius = 1

sketch14 = body.newObject("Sketcher::SketchObject", "Sketch013")
sketch14.AttachmentSupport = (doc.getObject("XY_Plane"), [""])
sketch14.MapMode = "FlatFace"
sketch14.AttachmentOffset = App.Placement(App.Vector(0, 0, 18), App.Rotation())
sketch14.addGeometry([
    Part.LineSegment(App.Vector(-29.246018, -2.660231, 0), App.Vector(-34.902872, -8.317086, 0)),
    Part.ArcOfCircle(Part.Circle(App.Vector(-32.781552, -10.438406, 0), App.Vector(0, 0, 1), 3), math.radians(135), math.radians(315)),
    Part.LineSegment(App.Vector(-30.660231, -12.559726, 0), App.Vector(-25.003377, -6.902872, 0)),
    Part.ArcOfCircle(Part.Circle(App.Vector(-27.124698, -4.781552, 0), App.Vector(0, 0, 1), 3), math.radians(-45), math.radians(135)),
    Part.LineSegment(App.Vector(34.902872, -8.317086, 0), App.Vector(29.246018, -2.660231, 0)),
    Part.ArcOfCircle(Part.Circle(App.Vector(27.124698, -4.781552, 0), App.Vector(0, 0, 1), 3), math.radians(45), math.radians(225)),
    Part.LineSegment(App.Vector(25.003377, -6.902872, 0), App.Vector(30.660231, -12.559726, 0)),
    Part.ArcOfCircle(Part.Circle(App.Vector(32.781552, -10.438406, 0), App.Vector(0, 0, 1), 3), math.radians(-135), math.radians(45)),
], False)
sketch14.addConstraint([
    Sketcher.Constraint("Tangent", 0, 2, 1, 1),
    Sketcher.Constraint("Tangent", 1, 2, 2, 1),
    Sketcher.Constraint("Tangent", 2, 2, 3, 1),
    Sketcher.Constraint("Tangent", 3, 2, 0, 1),
    Sketcher.Constraint("Tangent", 4, 2, 5, 1),
    Sketcher.Constraint("Tangent", 5, 2, 6, 1),
    Sketcher.Constraint("Tangent", 6, 2, 7, 1),
    Sketcher.Constraint("Tangent", 7, 2, 4, 1),
    Sketcher.Constraint("Equal", 1, 3),
    Sketcher.Constraint("Equal", 3, 5),
    Sketcher.Constraint("Equal", 5, 7),
    Sketcher.Constraint("Symmetric", 3, 3, 5, 3, -2),
    Sketcher.Constraint("Symmetric", 1, 3, 7, 3, -2),
    Sketcher.Constraint("Perpendicular", 2, 4),
    Sketcher.Constraint("Radius", 1, 3.0),
    Sketcher.Constraint("Distance", 0, 8.0),
    Sketcher.Constraint("DistanceX", 1, 3, -1, 1, 32.781552),
    Sketcher.Constraint("DistanceY", 3, 3, -1, 1, 4.781552),
])
pocket7 = body.newObject("PartDesign::Pocket", "Pocket006")
pocket7.Profile = sketch14
pocket7.Type = "ThroughAll"

doc.recompute()
